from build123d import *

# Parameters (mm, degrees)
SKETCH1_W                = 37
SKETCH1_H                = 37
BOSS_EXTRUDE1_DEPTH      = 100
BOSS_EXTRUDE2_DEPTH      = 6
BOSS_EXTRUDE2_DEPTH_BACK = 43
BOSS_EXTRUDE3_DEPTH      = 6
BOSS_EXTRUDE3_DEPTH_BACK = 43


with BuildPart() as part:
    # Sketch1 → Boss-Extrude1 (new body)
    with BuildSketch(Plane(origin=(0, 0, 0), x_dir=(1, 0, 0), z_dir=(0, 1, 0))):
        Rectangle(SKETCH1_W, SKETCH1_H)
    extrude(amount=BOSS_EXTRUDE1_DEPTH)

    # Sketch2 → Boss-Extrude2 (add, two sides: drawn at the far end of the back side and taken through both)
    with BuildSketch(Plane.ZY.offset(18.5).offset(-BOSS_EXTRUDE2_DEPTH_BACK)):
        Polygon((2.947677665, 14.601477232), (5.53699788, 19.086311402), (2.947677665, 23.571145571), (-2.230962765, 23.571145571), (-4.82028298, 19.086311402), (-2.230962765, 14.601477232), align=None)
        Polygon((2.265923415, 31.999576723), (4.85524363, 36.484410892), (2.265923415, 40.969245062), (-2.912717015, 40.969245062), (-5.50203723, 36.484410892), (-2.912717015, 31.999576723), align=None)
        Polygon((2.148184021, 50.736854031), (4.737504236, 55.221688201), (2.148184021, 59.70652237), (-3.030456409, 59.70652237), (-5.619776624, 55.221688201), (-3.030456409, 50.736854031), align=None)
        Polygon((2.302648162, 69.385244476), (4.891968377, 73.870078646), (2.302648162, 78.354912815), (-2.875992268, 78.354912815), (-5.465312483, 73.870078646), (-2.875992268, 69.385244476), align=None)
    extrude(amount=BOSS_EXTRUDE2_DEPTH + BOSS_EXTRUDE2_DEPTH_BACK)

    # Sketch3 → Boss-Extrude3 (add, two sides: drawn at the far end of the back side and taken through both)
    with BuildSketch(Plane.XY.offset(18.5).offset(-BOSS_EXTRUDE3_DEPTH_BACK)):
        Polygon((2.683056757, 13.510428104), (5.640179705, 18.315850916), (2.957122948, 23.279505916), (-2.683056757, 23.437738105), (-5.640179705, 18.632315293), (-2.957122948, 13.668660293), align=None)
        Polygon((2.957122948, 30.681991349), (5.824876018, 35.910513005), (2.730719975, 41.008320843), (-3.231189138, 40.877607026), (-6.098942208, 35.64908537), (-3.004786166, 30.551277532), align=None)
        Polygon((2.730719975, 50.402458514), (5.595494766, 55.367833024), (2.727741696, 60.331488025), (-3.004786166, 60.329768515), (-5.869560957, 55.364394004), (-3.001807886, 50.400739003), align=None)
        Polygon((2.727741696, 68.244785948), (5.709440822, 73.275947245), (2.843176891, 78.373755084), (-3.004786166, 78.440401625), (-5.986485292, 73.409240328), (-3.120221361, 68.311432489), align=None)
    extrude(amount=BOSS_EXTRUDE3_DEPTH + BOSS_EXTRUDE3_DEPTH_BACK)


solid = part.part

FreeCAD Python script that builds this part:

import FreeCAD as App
import Part
import Sketcher
from FreeCAD import Vector
Q = App.Units.Quantity

doc = App.newDocument("Part")
params = doc.addObject("Spreadsheet::Sheet", "Params")
for row, (alias, value) in enumerate([
    ("sketch1_width", "37 mm"),
    ("pad1_length", "100 mm"),
    ("pad2_length", "6 mm"),
    ("pad2_length2", "43 mm"),
    ("pad3_length", "6 mm"),
    ("pad3_length2", "43 mm"),
], start=1):
    params.set(f"A{row}", alias)
    params.set(f"B{row}", "=" + value)
    params.setAlias(f"B{row}", alias)

body = doc.addObject("PartDesign::Body", "Body")

sketch1 = body.newObject("Sketcher::SketchObject", "Sketch")
sketch1.AttachmentSupport = (doc.getObject("XZ_Plane"), [""])
sketch1.MapMode = "FlatFace"
sketch1.addGeometry([
    Part.LineSegment(Vector(-18, -18, 0), Vector(-18, 18, 0)),
    Part.LineSegment(Vector(-18, 18, 0), Vector(18, 18, 0)),
    Part.LineSegment(Vector(18, 18, 0), Vector(18, -18, 0)),
    Part.LineSegment(Vector(18, -18, 0), Vector(-18, -18, 0)),
], False)
sketch1.addConstraint([
    Sketcher.Constraint("Coincident", 0, 2, 1, 1),
    Sketcher.Constraint("Coincident", 1, 2, 2, 1),
    Sketcher.Constraint("Coincident", 2, 2, 3, 1),
    Sketcher.Constraint("Coincident", 3, 2, 0, 1),
    Sketcher.Constraint("Vertical", 0),
    Sketcher.Constraint("Horizontal", 1),
    Sketcher.Constraint("Vertical", 2),
    Sketcher.Constraint("Horizontal", 3),
    Sketcher.Constraint("Symmetric", 0, 2, 2, 2, -1, 1),
    Sketcher.Constraint("Equal", 3, 0),
    Sketcher.Constraint("DistanceX", 1, 1, 1, 2, Q("37 mm")),
])
sketch1.setExpression("Constraints[10]", "Params.sketch1_width")
pad1 = body.newObject("PartDesign::Pad", "Pad")
pad1.Profile = sketch1
pad1.setExpression("Length", "Params.pad1_length")
pad1.Reversed = True

sketch2 = body.newObject("Sketcher::SketchObject", "Sketch001")
sketch2.AttachmentSupport = (doc.getObject("YZ_Plane"), [""])
sketch2.MapMode = "FlatFace"
sketch2.AttachmentOffset = App.Placement(Vector(0, 0, -18.5), App.Rotation())
sketch2.addGeometry([
    Part.LineSegment(Vector(15, 3, 0), Vector(19, 6, 0)),
    Part.LineSegment(Vector(19, 6, 0), Vector(24, 3, 0)),
    Part.LineSegment(Vector(24, 3, 0), Vector(24, -2, 0)),
    Part.LineSegment(Vector(24, -2, 0), Vector(19, -5, 0)),
    Part.LineSegment(Vector(19, -5, 0), Vector(15, -2, 0)),
    Part.LineSegment(Vector(15, -2, 0), Vector(15, 3, 0)),
    Part.LineSegment(Vector(32, 2, 0), Vector(36, 5, 0)),
    Part.LineSegment(Vector(36, 5, 0), Vector(41, 2, 0)),
    Part.LineSegment(Vector(41, 2, 0), Vector(41, -3, 0)),
    Part.LineSegment(Vector(41, -3, 0), Vector(36, -6, 0)),
    Part.LineSegment(Vector(36, -6, 0), Vector(32, -3, 0)),
    Part.LineSegment(Vector(32, -3, 0), Vector(32, 2, 0)),
    Part.LineSegment(Vector(51, 2, 0), Vector(55, 5, 0)),
    Part.LineSegment(Vector(55, 5, 0), Vector(60, 2, 0)),
    Part.LineSegment(Vector(60, 2, 0), Vector(60, -3, 0)),
    Part.LineSegment(Vector(60, -3, 0), Vector(55, -6, 0)),
    Part.LineSegment(Vector(55, -6, 0), Vector(51, -3, 0)),
    Part.LineSegment(Vector(51, -3, 0), Vector(51, 2, 0)),
    Part.LineSegment(Vector(69, 2, 0), Vector(74, 5, 0)),
    Part.LineSegment(Vector(74, 5, 0), Vector(78, 2, 0)),
    Part.LineSegment(Vector(78, 2, 0), Vector(78, -3, 0)),
    Part.LineSegment(Vector(78, -3, 0), Vector(74, -5, 0)),
    Part.LineSegment(Vector(74, -5, 0), Vector(69, -3, 0)),
    Part.LineSegment(Vector(69, -3, 0), Vector(69, 2, 0)),
], False)
sketch2.addConstraint([
    Sketcher.Constraint("Coincident", 0, 2, 1, 1),
    Sketcher.Constraint("Coincident", 1, 2, 2, 1),
    Sketcher.Constraint("Coincident", 2, 2, 3, 1),
    Sketcher.Constraint("Coincident", 3, 2, 4, 1),
    Sketcher.Constraint("Coincident", 4, 2, 5, 1),
    Sketcher.Constraint("Coincident", 5, 2, 0, 1),
    Sketcher.Constraint("Coincident", 6, 2, 7, 1),
    Sketcher.Constraint("Coincident", 7, 2, 8, 1),
    Sketcher.Constraint("Coincident", 8, 2, 9, 1),
    Sketcher.Constraint("Coincident", 9, 2, 10, 1),
    Sketcher.Constraint("Coincident", 10, 2, 11, 1),
    Sketcher.Constraint("Coincident", 11, 2, 6, 1),
    Sketcher.Constraint("Coincident", 12, 2, 13, 1),
    Sketcher.Constraint("Coincident", 13, 2, 14, 1),
    Sketcher.Constraint("Coincident", 14, 2, 15, 1),
    Sketcher.Constraint("Coincident", 15, 2, 16, 1),
    Sketcher.Constraint("Coincident", 16, 2, 17, 1),
    Sketcher.Constraint("Coincident", 17, 2, 12, 1),
    Sketcher.Constraint("Coincident", 18, 2, 19, 1),
    Sketcher.Constraint("Coincident", 19, 2, 20, 1),
    Sketcher.Constraint("Coincident", 20, 2, 21, 1),
    Sketcher.Constraint("Coincident", 21, 2, 22, 1),
    Sketcher.Constraint("Coincident", 22, 2, 23, 1),
    Sketcher.Constraint("Coincident", 23, 2, 18, 1),
    Sketcher.Constraint("Vertical", 2),
    Sketcher.Constraint("Vertical", 5),
    Sketcher.Constraint("Vertical", 8),
    Sketcher.Constraint("Vertical", 11),
    Sketcher.Constraint("Vertical", 14),
    Sketcher.Constraint("Vertical", 17),
    Sketcher.Constraint("Vertical", 20),
    Sketcher.Constraint("Vertical", 23),
    Sketcher.Constraint("Parallel", 0, 3),
    Sketcher.Constraint("Parallel", 1, 4),
    Sketcher.Constraint("Parallel", 3, 6),
    Sketcher.Constraint("Parallel", 4, 7),
    Sketcher.Constraint("Parallel", 6, 9),
    Sketcher.Constraint("Parallel", 7, 10),
    Sketcher.Constraint("Parallel", 9, 12),
    Sketcher.Constraint("Parallel", 10, 13),
    Sketcher.Constraint("Parallel", 12, 15),
    Sketcher.Constraint("Parallel", 13, 16),
    Sketcher.Constraint("Parallel", 15, 18),
    Sketcher.Constraint("Parallel", 16, 19),
    Sketcher.Constraint("Parallel", 18, 21),
    Sketcher.Constraint("Parallel", 19, 22),
    Sketcher.Constraint("Horizontal", 2, 2, 4, 2),
    Sketcher.Constraint("Horizontal", 1, 2, 5, 2),
    Sketcher.Constraint("Horizontal", 8, 2, 10, 2),
    Sketcher.Constraint("Horizontal", 7, 2, 11, 2),
    Sketcher.Constraint("Horizontal", 14, 2, 16, 2),
    Sketcher.Constraint("Horizontal", 13, 2, 17, 2),
    Sketcher.Constraint("Horizontal", 20, 2, 22, 2),
    Sketcher.Constraint("Horizontal", 19, 2, 23, 2),
    Sketcher.Constraint("Vertical", 0, 2, 3, 2),
    Sketcher.Constraint("Equal", 5, 8),
    Sketcher.Constraint("Equal", 11, 14),
    Sketcher.Constraint("Equal", 17, 20),
    Sketcher.Constraint("Equal", 4, 6),
    Sketcher.Constraint("Equal", 10, 12),
    Sketcher.Constraint("Equal", 16, 18),
    Sketcher.Constraint("Angle", 0, Q("30 deg")),
    Sketcher.Constraint("DistanceY", 2, 2, 2, 1, Q("5.17864 mm")),
    Sketcher.Constraint("DistanceX", 0, 2, 6, 2, Q("17.398099 mm")),
    Sketcher.Constraint("DistanceY", 8, 2, 13, 2, Q("5.060901 mm")),
    Sketcher.Constraint("DistanceY", 15, 2, 7, 2, Q("7.8857 mm")),
    Sketcher.Constraint("DistanceX", -1, 1, 0, 2, Q("19.086311 mm")),
    Sketcher.Constraint("DistanceX", -1, 1, 12, 2, Q("55.221688 mm")),
    Sketcher.Constraint("DistanceX", -1, 1, 18, 2, Q("73.870079 mm")),
    Sketcher.Constraint("DistanceY", -1, 1, 18, 2, Q("4.891968 mm")),
    Sketcher.Constraint("DistanceY", -1, 1, 0, 2, Q("5.536998 mm")),
    Sketcher.Constraint("DistanceY", -1, 1, 6, 2, Q("4.855244 mm")),
])
pad2 = body.newObject("PartDesign::Pad", "Pad001")
pad2.Profile = sketch2
pad2.Type = "TwoLengths"
pad2.setExpression("Length", "Params.pad2_length")
pad2.setExpression("Length2", "Params.pad2_length2")
pad2.Reversed = True

sketch3 = body.newObject("Sketcher::SketchObject", "Sketch002")
sketch3.AttachmentSupport = (doc.getObject("XY_Plane"), [""])
sketch3.MapMode = "FlatFace"
sketch3.AttachmentOffset = App.Placement(Vector(0, 0, 18.5), App.Rotation())
sketch3.addGeometry([
    Part.LineSegment(Vector(2.683057, 13.510428, 0), Vector(5.64018, 18.315851, 0)),
    Part.LineSegment(Vector(5.64018, 18.315851, 0), Vector(2.957123, 23.279506, 0)),
    Part.LineSegment(Vector(2.957123, 23.279506, 0), Vector(-2.683057, 23.437738, 0)),
    Part.LineSegment(Vector(-2.683057, 23.437738, 0), Vector(-5.64018, 18.632315, 0)),
    Part.LineSegment(Vector(-5.64018, 18.632315, 0), Vector(-2.957123, 13.66866, 0)),
    Part.LineSegment(Vector(-2.957123, 13.66866, 0), Vector(2.683057, 13.510428, 0)),
    Part.LineSegment(Vector(2.957123, 30.681991, 0), Vector(5.824876, 35.910513, 0)),
    Part.LineSegment(Vector(5.824876, 35.910513, 0), Vector(2.73072, 41.008321, 0)),
    Part.LineSegment(Vector(2.73072, 41.008321, 0), Vector(-3.231189, 40.877607, 0)),
    Part.LineSegment(Vector(-3.231189, 40.877607, 0), Vector(-6.098942, 35.649085, 0)),
    Part.LineSegment(Vector(-6.098942, 35.649085, 0), Vector(-3.004786, 30.551278, 0)),
    Part.LineSegment(Vector(-3.004786, 30.551278, 0), Vector(2.957123, 30.681991, 0)),
    Part.LineSegment(Vector(2.73072, 50.402459, 0), Vector(5.595495, 55.367833, 0)),
    Part.LineSegment(Vector(5.595495, 55.367833, 0), Vector(2.727742, 60.331488, 0)),
    Part.LineSegment(Vector(2.727742, 60.331488, 0), Vector(-3.004786, 60.329769, 0)),
    Part.LineSegment(Vector(-3.004786, 60.329769, 0), Vector(-5.869561, 55.364394, 0)),
    Part.LineSegment(Vector(-5.869561, 55.364394, 0), Vector(-3.001808, 50.400739, 0)),
    Part.LineSegment(Vector(-3.001808, 50.400739, 0), Vector(2.73072, 50.402459, 0)),
    Part.LineSegment(Vector(2.727742, 68.244786, 0), Vector(5.709441, 73.275947, 0)),
    Part.LineSegment(Vector(5.709441, 73.275947, 0), Vector(2.843177, 78.373755, 0)),
    Part.LineSegment(Vector(2.843177, 78.373755, 0), Vector(-3.004786, 78.440402, 0)),
    Part.LineSegment(Vector(-3.004786, 78.440402, 0), Vector(-5.986485, 73.40924, 0)),
    Part.LineSegment(Vector(-5.986485, 73.40924, 0), Vector(-3.120221, 68.311432, 0)),
    Part.LineSegment(Vector(-3.120221, 68.311432, 0), Vector(2.727742, 68.244786, 0)),
], False)
sketch3.addConstraint([
    Sketcher.Constraint("Coincident", 0, 2, 1, 1),
    Sketcher.Constraint("Coincident", 1, 2, 2, 1),
    Sketcher.Constraint("Coincident", 2, 2, 3, 1),
    Sketcher.Constraint("Coincident", 3, 2, 4, 1),
    Sketcher.Constraint("Coincident", 4, 2, 5, 1),
    Sketcher.Constraint("Coincident", 5, 2, 0, 1),
    Sketcher.Constraint("Coincident", 6, 2, 7, 1),
    Sketcher.Constraint("Coincident", 7, 2, 8, 1),
    Sketcher.Constraint("Coincident", 8, 2, 9, 1),
    Sketcher.Constraint("Coincident", 9, 2, 10, 1),
    Sketcher.Constraint("Coincident", 10, 2, 11, 1),
    Sketcher.Constraint("Coincident", 11, 2, 6, 1),
    Sketcher.Constraint("Coincident", 12, 2, 13, 1),
    Sketcher.Constraint("Coincident", 13, 2, 14, 1),
    Sketcher.Constraint("Coincident", 14, 2, 15, 1),
    Sketcher.Constraint("Coincident", 15, 2, 16, 1),
    Sketcher.Constraint("Coincident", 16, 2, 17, 1),
    Sketcher.Constraint("Coincident", 17, 2, 12, 1),
    Sketcher.Constraint("Coincident", 18, 2, 19, 1),
    Sketcher.Constraint("Coincident", 19, 2, 20, 1),
    Sketcher.Constraint("Coincident", 20, 2, 21, 1),
    Sketcher.Constraint("Coincident", 21, 2, 22, 1),
    Sketcher.Constraint("Coincident", 22, 2, 23, 1),
    Sketcher.Constraint("Coincident", 23, 2, 18, 1),
    Sketcher.Constraint("DistanceX", 15, 2, 18, 2, Q("11.579002 mm")),
    Sketcher.Constraint("Distance", 0, Q("5.642399 mm")),
    Sketcher.Constraint("Distance", 1, Q("5.642399 mm")),
    Sketcher.Constraint("Distance", 2, Q("5.642399 mm")),
    Sketcher.Constraint("Distance", 3, Q("5.642399 mm")),
    Sketcher.Constraint("Distance", 4, Q("5.642399 mm")),
    Sketcher.Constraint("Distance", 5, Q("5.642399 mm")),
    Sketcher.Constraint("DistanceY", -1, 1, 20, 2, Q("78.440402 mm")),
    Sketcher.Constraint("DistanceX", 3, 2, 7, 2, Q("8.3709 mm")),
    Sketcher.Constraint("DistanceY", 1, 2, 8, 2, Q("17.598101 mm")),
    Sketcher.Constraint("DistanceX", 13, 2, 18, 2, Q("2.981699 mm")),
    Sketcher.Constraint("DistanceX", 21, 2, 20, 2, Q("2.981699 mm")),
    Sketcher.Constraint("DistanceX", 21, 2, 14, 2, Q("2.981699 mm")),
    Sketcher.Constraint("DistanceX", 23, 2, 18, 2, Q("2.981699 mm")),
    Sketcher.Constraint("Distance", 6, Q("5.963342 mm")),
    Sketcher.Constraint("Distance", 7, Q("5.963342 mm")),
    Sketcher.Constraint("Distance", 8, Q("5.963342 mm")),
    Sketcher.Constraint("Distance", 9, Q("5.963342 mm")),
    Sketcher.Constraint("Distance", 10, Q("5.963342 mm")),
    Sketcher.Constraint("Distance", 11, Q("5.963342 mm")),
    Sketcher.Constraint("Distance", 12, Q("5.732528 mm")),
    Sketcher.Constraint("Distance", 13, Q("5.732528 mm")),
    Sketcher.Constraint("Distance", 14, Q("5.732528 mm")),
    Sketcher.Constraint("Distance", 15, Q("5.732528 mm")),
    Sketcher.Constraint("Distance", 16, Q("5.732528 mm")),
    Sketcher.Constraint("Distance", 17, Q("5.732528 mm")),
    Sketcher.Constraint("DistanceX", -1, 1, 0, 2, Q("5.64018 mm")),
    Sketcher.Constraint("DistanceY", -1, 1, 0, 2, Q("18.315851 mm")),
    Sketcher.Constraint("DistanceY", -1, 1, 2, 2, Q("23.437738 mm")),
    Sketcher.Constraint("DistanceX", 3, 2, -1, 1, Q("5.64018 mm")),
    Sketcher.Constraint("DistanceY", -1, 1, 4, 2, Q("13.66866 mm")),
    Sketcher.Constraint("DistanceY", -1, 1, 5, 2, Q("13.510428 mm")),
    Sketcher.Constraint("DistanceY", -1, 1, 7, 2, Q("41.008321 mm")),
    Sketcher.Constraint("DistanceY", -1, 1, 11, 2, Q("30.681991 mm")),
    Sketcher.Constraint("DistanceX", -1, 1, 13, 2, Q("2.727742 mm")),
    Sketcher.Constraint("DistanceY", -1, 1, 13, 2, Q("60.331488 mm")),
    Sketcher.Constraint("DistanceY", -1, 1, 14, 2, Q("60.329769 mm")),
    Sketcher.Constraint("DistanceY", -1, 1, 16, 2, Q("50.400739 mm")),
    Sketcher.Constraint("DistanceY", -1, 1, 17, 2, Q("50.402459 mm")),
    Sketcher.Constraint("DistanceY", -1, 1, 21, 2, Q("73.40924 mm")),
    Sketcher.Constraint("DistanceX", 22, 2, -1, 1, Q("3.120221 mm")),
    Sketcher.Constraint("DistanceX", 5, 2, 6, 2, Q("3.141819 mm")),
    Sketcher.Constraint("DistanceY", 9, 2, 8, 2, Q("5.228522 mm")),
    Sketcher.Constraint("DistanceY", 13, 2, 18, 2, Q("12.944459 mm")),
    Sketcher.Constraint("DistanceY", 15, 2, 19, 2, Q("23.009361 mm")),
    Sketcher.Constraint("DistanceY", 22, 2, 20, 2, Q("10.128969 mm")),
    Sketcher.Constraint("DistanceY", 23, 2, 18, 2, Q("5.031161 mm")),
    Sketcher.Constraint("Distance", 19, Q("5.848343 mm")),
])
pad3 = body.newObject("PartDesign::Pad", "Pad002")
pad3.Profile = sketch3
pad3.Type = "TwoLengths"
pad3.setExpression("Length", "Params.pad3_length")
pad3.setExpression("Length2", "Params.pad3_length2")

doc.recompute()
